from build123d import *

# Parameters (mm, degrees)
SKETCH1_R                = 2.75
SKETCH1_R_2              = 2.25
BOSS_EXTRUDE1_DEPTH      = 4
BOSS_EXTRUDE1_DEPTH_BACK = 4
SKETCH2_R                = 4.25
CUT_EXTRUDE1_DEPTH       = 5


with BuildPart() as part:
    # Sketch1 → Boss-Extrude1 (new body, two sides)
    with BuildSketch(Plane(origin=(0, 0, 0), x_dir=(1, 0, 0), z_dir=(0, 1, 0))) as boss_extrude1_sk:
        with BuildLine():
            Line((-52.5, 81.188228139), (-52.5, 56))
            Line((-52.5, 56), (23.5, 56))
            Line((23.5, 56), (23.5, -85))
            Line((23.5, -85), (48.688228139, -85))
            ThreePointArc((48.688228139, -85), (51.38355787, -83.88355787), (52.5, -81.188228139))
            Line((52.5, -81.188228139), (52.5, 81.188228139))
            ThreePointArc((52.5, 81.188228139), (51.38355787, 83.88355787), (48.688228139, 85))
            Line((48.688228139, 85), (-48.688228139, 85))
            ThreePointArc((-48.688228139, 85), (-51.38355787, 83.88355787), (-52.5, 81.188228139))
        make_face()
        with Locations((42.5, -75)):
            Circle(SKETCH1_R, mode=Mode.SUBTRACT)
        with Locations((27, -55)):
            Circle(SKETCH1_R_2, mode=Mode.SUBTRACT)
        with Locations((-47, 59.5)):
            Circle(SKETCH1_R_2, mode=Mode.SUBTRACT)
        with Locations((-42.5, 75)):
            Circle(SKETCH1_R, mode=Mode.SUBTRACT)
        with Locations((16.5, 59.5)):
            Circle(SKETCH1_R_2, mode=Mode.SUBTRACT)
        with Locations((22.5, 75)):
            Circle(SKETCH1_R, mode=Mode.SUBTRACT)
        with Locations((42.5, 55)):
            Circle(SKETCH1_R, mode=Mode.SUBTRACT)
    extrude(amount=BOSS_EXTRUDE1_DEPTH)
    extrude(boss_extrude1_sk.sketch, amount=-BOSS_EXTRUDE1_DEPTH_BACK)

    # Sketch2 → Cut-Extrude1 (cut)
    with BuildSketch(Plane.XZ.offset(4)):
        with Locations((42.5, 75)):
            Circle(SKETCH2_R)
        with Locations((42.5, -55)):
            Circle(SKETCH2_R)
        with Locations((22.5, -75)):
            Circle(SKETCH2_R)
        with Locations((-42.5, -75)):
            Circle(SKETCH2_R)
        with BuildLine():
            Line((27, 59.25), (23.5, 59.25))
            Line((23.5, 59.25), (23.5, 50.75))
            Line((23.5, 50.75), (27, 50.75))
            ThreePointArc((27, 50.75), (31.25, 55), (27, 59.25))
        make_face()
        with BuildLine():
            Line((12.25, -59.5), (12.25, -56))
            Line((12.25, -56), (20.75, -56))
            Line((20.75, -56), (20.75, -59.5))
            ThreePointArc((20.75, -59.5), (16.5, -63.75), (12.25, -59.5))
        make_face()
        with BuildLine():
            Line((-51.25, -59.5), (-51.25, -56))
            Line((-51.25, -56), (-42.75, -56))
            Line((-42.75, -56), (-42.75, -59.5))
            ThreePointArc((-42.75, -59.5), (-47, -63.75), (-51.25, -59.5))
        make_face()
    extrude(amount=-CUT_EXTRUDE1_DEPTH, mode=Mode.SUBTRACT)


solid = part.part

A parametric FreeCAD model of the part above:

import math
import FreeCAD as App
import Part
import Sketcher
Q = App.Units.Quantity

doc = App.newDocument("Part")
body = doc.addObject("PartDesign::Body", "Body")

sketch1 = body.newObject("Sketcher::SketchObject", "Sketch")
sketch1.AttachmentSupport = (doc.getObject("XZ_Plane"), [""])
sketch1.MapMode = "FlatFace"
sketch1.addGeometry([
    Part.LineSegment(App.Vector(-52.5, -81.188228, 0), App.Vector(-52.5, -56, 0)),
    Part.LineSegment(App.Vector(-52.5, -56, 0), App.Vector(23.5, -56, 0)),
    Part.LineSegment(App.Vector(23.5, -56, 0), App.Vector(23.5, 85, 0)),
    Part.LineSegment(App.Vector(23.5, 85, 0), App.Vector(48.688228, 85, 0)),
    Part.ArcOfCircle(Part.Circle(App.Vector(48.688228, 81.188228, 0), App.Vector(0, 0, 1), 3.811772), math.radians(0), math.radians(90)),
    Part.LineSegment(App.Vector(52.5, 81.188228, 0), App.Vector(52.5, -81.188228, 0)),
    Part.ArcOfCircle(Part.Circle(App.Vector(48.688228, -81.188228, 0), App.Vector(0, 0, 1), 3.811772), math.radians(-90), math.radians(0)),
    Part.LineSegment(App.Vector(48.688228, -85, 0), App.Vector(-48.688228, -85, 0)),
    Part.ArcOfCircle(Part.Circle(App.Vector(-48.688228, -81.188228, 0), App.Vector(0, 0, 1), 3.811772), math.radians(-180), math.radians(-90)),
    Part.Circle(App.Vector(42.5, 75, 0), App.Vector(0, 0, 1), 2.75),
    Part.Circle(App.Vector(27, 55, 0), App.Vector(0, 0, 1), 2.25),
    Part.Circle(App.Vector(-47, -59.5, 0), App.Vector(0, 0, 1), 2.25),
    Part.Circle(App.Vector(-42.5, -75, 0), App.Vector(0, 0, 1), 2.75),
    Part.Circle(App.Vector(16.5, -59.5, 0), App.Vector(0, 0, 1), 2.25),
    Part.Circle(App.Vector(42.5, -55, 0), App.Vector(0, 0, 1), 2.75),
    Part.Circle(App.Vector(22.5, -75, 0), App.Vector(0, 0, 1), 2.75),
], False)
sketch1.addConstraint([
    Sketcher.Constraint("Coincident", 0, 2, 1, 1),
    Sketcher.Constraint("Coincident", 1, 2, 2, 1),
    Sketcher.Constraint("Coincident", 2, 2, 3, 1),
    Sketcher.Constraint("Tangent", 3, 2, 4, 2),
    Sketcher.Constraint("Tangent", 4, 1, 5, 1),
    Sketcher.Constraint("Tangent", 5, 2, 6, 2),
    Sketcher.Constraint("Tangent", 6, 1, 7, 1),
    Sketcher.Constraint("Tangent", 7, 2, 8, 2),
    Sketcher.Constraint("Tangent", 8, 1, 0, 1),
    Sketcher.Constraint("Vertical", 0),
    Sketcher.Constraint("Horizontal", 1),
    Sketcher.Constraint("Vertical", 2),
    Sketcher.Constraint("Horizontal", 3),
    Sketcher.Constraint("Vertical", 5),
    Sketcher.Constraint("Horizontal", 7),
    Sketcher.Constraint("Equal", 4, 6),
    Sketcher.Constraint("Equal", 6, 8),
    Sketcher.Constraint("Equal", 10, 11),
    Sketcher.Constraint("Equal", 9, 12),
    Sketcher.Constraint("Equal", 11, 13),
    Sketcher.Constraint("Equal", 12, 14),
    Sketcher.Constraint("Equal", 14, 15),
    Sketcher.Constraint("Symmetric", 4, 3, 8, 3, -1, 1),
    Sketcher.Constraint("Symmetric", 9, 3, 12, 3, -1, 1),
    Sketcher.Constraint("Horizontal", 11, 3, 13, 3),
    Sketcher.Constraint("Horizontal", 12, 3, 15, 3),
    Sketcher.Constraint("Vertical", 9, 3, 14, 3),
    Sketcher.Constraint("Equal", 3, 0),
    Sketcher.Constraint("Diameter", 9, Q("5.5 mm")),
    Sketcher.Constraint("Diameter", 10, Q("4.5 mm")),
    Sketcher.Constraint("DistanceX", 1, 1, 1, 2, Q("76 mm")),
    Sketcher.Constraint("DistanceY", 2, 1, 2, 2, Q("141 mm")),
    Sketcher.Constraint("DistanceY", -1, 1, 9, 3, Q("75 mm")),
    Sketcher.Constraint("DistanceX", -1, 1, 10, 3, Q("27 mm")),
    Sketcher.Constraint("DistanceY", -1, 1, 10, 3, Q("55 mm")),
    Sketcher.Constraint("DistanceX", 11, 3, -1, 1, Q("47 mm")),
    Sketcher.Constraint("DistanceY", 14, 3, -1, 1, Q("55 mm")),
    Sketcher.Constraint("DistanceY", 0, 2, -1, 1, Q("56 mm")),
    Sketcher.Constraint("DistanceX", 12, 3, 9, 3, Q("85 mm")),
    Sketcher.Constraint("DistanceX", 12, 3, 13, 3, Q("59 mm")),
    Sketcher.Constraint("DistanceX", 13, 3, 15, 3, Q("6 mm")),
    Sketcher.Constraint("DistanceY", 11, 3, -1, 1, Q("59.5 mm")),
    Sketcher.Constraint("Radius", 4, Q("3.811772 mm")),
])
pad1 = body.newObject("PartDesign::Pad", "Pad")
pad1.Profile = sketch1
pad1.Type = "TwoLengths"
pad1.Length = 4
pad1.Length2 = 4
pad1.Reversed = True

sketch2 = body.newObject("Sketcher::SketchObject", "Sketch001")
sketch2.AttachmentSupport = (doc.getObject("XZ_Plane"), [""])
sketch2.MapMode = "FlatFace"
sketch2.AttachmentOffset = App.Placement(App.Vector(0, 0, 4), App.Rotation())
sketch2.addGeometry([
    Part.Circle(App.Vector(42.5, 75, 0), App.Vector(0, 0, 1), 4.25),
    Part.Circle(App.Vector(42.5, -55, 0), App.Vector(0, 0, 1), 4.25),
    Part.Circle(App.Vector(22.5, -75, 0), App.Vector(0, 0, 1), 4.25),
    Part.Circle(App.Vector(-42.5, -75, 0), App.Vector(0, 0, 1), 4.25),
    Part.LineSegment(App.Vector(27, 59.25, 0), App.Vector(23.5, 59.25, 0)),
    Part.LineSegment(App.Vector(23.5, 59.25, 0), App.Vector(23.5, 50.75, 0)),
    Part.LineSegment(App.Vector(23.5, 50.75, 0), App.Vector(27, 50.75, 0)),
    Part.ArcOfCircle(Part.Circle(App.Vector(27, 55, 0), App.Vector(0, 0, 1), 4.25), math.radians(-90), math.radians(90)),
    Part.LineSegment(App.Vector(12.25, -56, 0), App.Vector(12.25, -59.5, 0)),
    Part.ArcOfCircle(Part.Circle(App.Vector(16.5, -59.5, 0), App.Vector(0, 0, 1), 4.25), math.radians(180), math.radians(360)),
    Part.LineSegment(App.Vector(20.75, -59.5, 0), App.Vector(20.75, -56, 0)),
    Part.LineSegment(App.Vector(20.75, -56, 0), App.Vector(12.25, -56, 0)),
    Part.LineSegment(App.Vector(-51.25, -56, 0), App.Vector(-51.25, -59.5, 0)),
    Part.ArcOfCircle(Part.Circle(App.Vector(-47, -59.5, 0), App.Vector(0, 0, 1), 4.25), math.radians(180), math.radians(360)),
    Part.LineSegment(App.Vector(-42.75, -59.5, 0), App.Vector(-42.75, -56, 0)),
    Part.LineSegment(App.Vector(-42.75, -56, 0), App.Vector(-51.25, -56, 0)),
], False)
sketch2.addConstraint([
    Sketcher.Constraint("Coincident", 4, 2, 5, 1),
    Sketcher.Constraint("Coincident", 5, 2, 6, 1),
    Sketcher.Constraint("Tangent", 6, 2, 7, 1),
    Sketcher.Constraint("Tangent", 7, 2, 4, 1),
    Sketcher.Constraint("Tangent", 8, 2, 9, 1),
    Sketcher.Constraint("Tangent", 9, 2, 10, 1),
    Sketcher.Constraint("Coincident", 10, 2, 11, 1),
    Sketcher.Constraint("Coincident", 11, 2, 8, 1),
    Sketcher.Constraint("Tangent", 12, 2, 13, 1),
    Sketcher.Constraint("Tangent", 13, 2, 14, 1),
    Sketcher.Constraint("Coincident", 14, 2, 15, 1),
    Sketcher.Constraint("Coincident", 15, 2, 12, 1),
    Sketcher.Constraint("Horizontal", 4),
    Sketcher.Constraint("Vertical", 5),
    Sketcher.Constraint("Horizontal", 6),
    Sketcher.Constraint("Vertical", 8),
    Sketcher.Constraint("Vertical", 10),
    Sketcher.Constraint("Horizontal", 11),
    Sketcher.Constraint("Vertical", 12),
    Sketcher.Constraint("Vertical", 14),
    Sketcher.Constraint("Horizontal", 15),
    Sketcher.Constraint("Equal", 0, 1),
    Sketcher.Constraint("Equal", 1, 2),
    Sketcher.Constraint("Equal", 2, 3),
    Sketcher.Constraint("Equal", 3, 7),
    Sketcher.Constraint("Equal", 7, 9),
    Sketcher.Constraint("Equal", 9, 13),
    Sketcher.Constraint("Symmetric", 0, 3, 3, 3, -1, 1),
    Sketcher.Constraint("Horizontal", 2, 3, 3, 3),
    Sketcher.Constraint("Horizontal", 9, 3, 13, 3),
    Sketcher.Constraint("Horizontal", 11, 2, 14, 2),
    Sketcher.Constraint("Vertical", 0, 3, 1, 3),
    Sketcher.Constraint("Equal", 6, 8),
    Sketcher.Constraint("Diameter", 0, Q("8.5 mm")),
    Sketcher.Constraint("DistanceX", 4, 2, 4, 1, Q("3.5 mm")),
    Sketcher.Constraint("DistanceY", -1, 1, 0, 3, Q("75 mm")),
    Sketcher.Constraint("DistanceY", 1, 3, -1, 1, Q("55 mm")),
    Sketcher.Constraint("DistanceX", -1, 1, 7, 3, Q("27 mm")),
    Sketcher.Constraint("DistanceY", -1, 1, 7, 3, Q("55 mm")),
    Sketcher.Constraint("DistanceX", 13, 3, -1, 1, Q("47 mm")),
    Sketcher.Constraint("DistanceY", 10, 2, -1, 1, Q("56 mm")),
    Sketcher.Constraint("DistanceX", 2, 3, 1, 3, Q("20 mm")),
    Sketcher.Constraint("DistanceX", 3, 3, 2, 3, Q("65 mm")),
    Sketcher.Constraint("DistanceX", 9, 3, 2, 3, Q("6 mm")),
])
pocket1 = body.newObject("PartDesign::Pocket", "Pocket")
pocket1.Profile = sketch2
pocket1.Length = 5

doc.recompute()
